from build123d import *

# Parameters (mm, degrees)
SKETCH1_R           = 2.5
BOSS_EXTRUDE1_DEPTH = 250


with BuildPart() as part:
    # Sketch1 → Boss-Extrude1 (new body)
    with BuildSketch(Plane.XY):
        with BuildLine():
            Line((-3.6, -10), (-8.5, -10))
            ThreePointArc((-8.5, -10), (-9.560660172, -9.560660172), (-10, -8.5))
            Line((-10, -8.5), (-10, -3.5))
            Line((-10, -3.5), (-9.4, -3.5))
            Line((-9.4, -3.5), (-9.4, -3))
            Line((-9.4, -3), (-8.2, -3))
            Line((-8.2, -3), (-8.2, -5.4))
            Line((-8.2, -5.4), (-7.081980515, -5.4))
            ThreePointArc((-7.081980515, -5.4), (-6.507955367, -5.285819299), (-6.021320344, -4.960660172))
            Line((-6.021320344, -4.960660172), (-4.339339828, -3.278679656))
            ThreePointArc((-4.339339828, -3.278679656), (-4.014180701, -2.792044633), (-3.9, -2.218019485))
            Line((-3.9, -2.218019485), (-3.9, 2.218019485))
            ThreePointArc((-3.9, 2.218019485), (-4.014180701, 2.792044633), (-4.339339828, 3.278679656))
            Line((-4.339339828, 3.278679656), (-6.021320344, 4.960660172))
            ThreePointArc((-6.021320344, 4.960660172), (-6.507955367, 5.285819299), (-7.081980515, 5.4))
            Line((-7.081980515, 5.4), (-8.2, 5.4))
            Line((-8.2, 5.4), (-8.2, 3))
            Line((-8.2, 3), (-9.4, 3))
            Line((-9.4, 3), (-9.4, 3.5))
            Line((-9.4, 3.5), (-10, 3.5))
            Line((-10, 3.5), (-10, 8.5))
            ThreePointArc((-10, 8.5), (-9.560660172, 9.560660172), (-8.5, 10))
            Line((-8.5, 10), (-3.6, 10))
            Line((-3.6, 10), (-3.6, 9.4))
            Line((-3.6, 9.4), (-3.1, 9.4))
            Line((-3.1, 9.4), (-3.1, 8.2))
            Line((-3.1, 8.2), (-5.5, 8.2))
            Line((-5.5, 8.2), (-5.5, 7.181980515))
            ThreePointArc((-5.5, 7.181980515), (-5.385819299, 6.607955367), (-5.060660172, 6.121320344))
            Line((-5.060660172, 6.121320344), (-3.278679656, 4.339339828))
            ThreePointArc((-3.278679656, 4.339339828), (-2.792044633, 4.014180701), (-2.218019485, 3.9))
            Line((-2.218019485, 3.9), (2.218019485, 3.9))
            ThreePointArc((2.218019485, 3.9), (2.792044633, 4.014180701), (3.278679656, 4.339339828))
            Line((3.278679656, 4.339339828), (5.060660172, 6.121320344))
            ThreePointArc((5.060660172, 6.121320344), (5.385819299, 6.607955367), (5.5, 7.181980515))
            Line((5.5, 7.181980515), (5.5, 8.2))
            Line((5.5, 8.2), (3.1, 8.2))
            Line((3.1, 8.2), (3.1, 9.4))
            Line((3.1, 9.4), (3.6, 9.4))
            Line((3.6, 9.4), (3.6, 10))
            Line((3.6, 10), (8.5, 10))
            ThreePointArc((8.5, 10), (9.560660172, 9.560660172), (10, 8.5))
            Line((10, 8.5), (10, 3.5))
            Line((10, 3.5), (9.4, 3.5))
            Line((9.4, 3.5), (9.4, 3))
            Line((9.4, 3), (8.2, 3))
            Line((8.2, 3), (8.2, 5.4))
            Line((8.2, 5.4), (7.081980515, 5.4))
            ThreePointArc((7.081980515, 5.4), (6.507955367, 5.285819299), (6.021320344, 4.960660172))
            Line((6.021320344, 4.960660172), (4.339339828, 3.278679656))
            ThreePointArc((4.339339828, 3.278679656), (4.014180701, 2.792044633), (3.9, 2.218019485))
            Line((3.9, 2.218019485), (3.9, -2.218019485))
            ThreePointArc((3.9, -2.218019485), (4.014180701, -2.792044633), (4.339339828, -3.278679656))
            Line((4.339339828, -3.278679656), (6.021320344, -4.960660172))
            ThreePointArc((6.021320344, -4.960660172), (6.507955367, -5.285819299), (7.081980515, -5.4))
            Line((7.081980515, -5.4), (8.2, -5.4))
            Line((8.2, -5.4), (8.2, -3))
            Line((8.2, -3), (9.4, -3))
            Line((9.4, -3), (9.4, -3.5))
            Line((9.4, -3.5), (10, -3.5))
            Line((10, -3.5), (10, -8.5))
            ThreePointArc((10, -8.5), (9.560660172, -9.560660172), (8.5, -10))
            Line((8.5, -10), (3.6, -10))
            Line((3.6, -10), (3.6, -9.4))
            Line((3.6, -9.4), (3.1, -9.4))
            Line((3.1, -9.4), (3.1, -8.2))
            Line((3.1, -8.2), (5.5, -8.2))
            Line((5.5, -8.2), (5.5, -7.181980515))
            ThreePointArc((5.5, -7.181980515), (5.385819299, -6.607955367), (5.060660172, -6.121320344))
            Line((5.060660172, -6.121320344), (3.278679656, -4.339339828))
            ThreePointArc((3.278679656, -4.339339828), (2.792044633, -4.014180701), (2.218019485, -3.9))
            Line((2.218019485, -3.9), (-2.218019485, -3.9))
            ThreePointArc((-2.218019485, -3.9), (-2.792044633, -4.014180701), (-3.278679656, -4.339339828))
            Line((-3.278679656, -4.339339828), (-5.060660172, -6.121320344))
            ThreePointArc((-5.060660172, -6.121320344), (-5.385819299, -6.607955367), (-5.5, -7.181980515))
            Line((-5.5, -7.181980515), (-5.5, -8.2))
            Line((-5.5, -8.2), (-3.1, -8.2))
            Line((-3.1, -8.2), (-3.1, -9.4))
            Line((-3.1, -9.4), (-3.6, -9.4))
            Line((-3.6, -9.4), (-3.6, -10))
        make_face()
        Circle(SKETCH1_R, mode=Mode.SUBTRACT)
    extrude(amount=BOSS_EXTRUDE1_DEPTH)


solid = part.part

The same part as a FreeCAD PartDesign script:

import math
import FreeCAD as App
import Part
import Sketcher

doc = App.newDocument("Part")
params = doc.addObject("Spreadsheet::Sheet", "Params")
for row, (alias, value) in enumerate([
    ("sketch1_diameter", "5 mm"),
    ("sketch1_radius", "1.5 mm"),
    ("sketch1_height", "5 mm"),
    ("sketch1_width", "4.9 mm"),
    ("sketch1_width2", "0.5 mm"),
    ("pad1_length", "250 mm"),
], start=1):
    params.set(f"A{row}", alias)
    params.set(f"B{row}", "=" + value)
    params.setAlias(f"B{row}", alias)

body = doc.addObject("PartDesign::Body", "Body")

# Sketch on XY plane
sketch1 = body.newObject("Sketcher::SketchObject", "Sketch")
sketch1.AttachmentSupport = (doc.getObject("XY_Plane"), [""])
sketch1.MapMode = "FlatFace"
sketch1.addGeometry([
    Part.LineSegment(App.Vector(-8.5, -10, 0), App.Vector(-3.6, -10, 0)),  # 0
    Part.LineSegment(App.Vector(-3.6, -10, 0), App.Vector(-3.6, -9.4, 0)),  # 1
    Part.LineSegment(App.Vector(-3.6, -9.4, 0), App.Vector(-3.1, -9.4, 0)),  # 2
    Part.LineSegment(App.Vector(-3.1, -9.4, 0), App.Vector(-3.1, -8.2, 0)),  # 3
    Part.LineSegment(App.Vector(-3.1, -8.2, 0), App.Vector(-5.5, -8.2, 0)),  # 4
    Part.LineSegment(App.Vector(-5.5, -8.2, 0), App.Vector(-5.5, -7.2, 0)),  # 5
    Part.ArcOfCircle(Part.Circle(App.Vector(-4, -7.2, 0), App.Vector(0, 0, 1), 1.5), math.radians(135), math.radians(180)),  # 6
    Part.LineSegment(App.Vector(-5.1, -6.1, 0), App.Vector(-3.3, -4.3, 0)),  # 7
    Part.ArcOfCircle(Part.Circle(App.Vector(-2.2, -5.4, 0), App.Vector(0, 0, 1), 1.5), math.radians(90), math.radians(135)),  # 8
    Part.LineSegment(App.Vector(-2.2, -3.9, 0), App.Vector(2.2, -3.9, 0)),  # 9
    Part.ArcOfCircle(Part.Circle(App.Vector(2.2, -5.4, 0), App.Vector(0, 0, 1), 1.5), math.radians(45), math.radians(90)),  # 10
    Part.LineSegment(App.Vector(3.3, -4.3, 0), App.Vector(5.1, -6.1, 0)),  # 11
    Part.ArcOfCircle(Part.Circle(App.Vector(4, -7.2, 0), App.Vector(0, 0, 1), 1.5), math.radians(0), math.radians(45)),  # 12
    Part.LineSegment(App.Vector(5.5, -7.2, 0), App.Vector(5.5, -8.2, 0)),  # 13
    Part.LineSegment(App.Vector(5.5, -8.2, 0), App.Vector(3.1, -8.2, 0)),  # 14
    Part.LineSegment(App.Vector(3.1, -8.2, 0), App.Vector(3.1, -9.4, 0)),  # 15
    Part.LineSegment(App.Vector(3.1, -9.4, 0), App.Vector(3.6, -9.4, 0)),  # 16
    Part.LineSegment(App.Vector(3.6, -9.4, 0), App.Vector(3.6, -10, 0)),  # 17
    Part.LineSegment(App.Vector(3.6, -10, 0), App.Vector(8.5, -10, 0)),  # 18
    Part.ArcOfCircle(Part.Circle(App.Vector(8.5, -8.5, 0), App.Vector(0, 0, 1), 1.5), math.radians(-90), math.radians(0)),  # 19
    Part.LineSegment(App.Vector(10, -8.5, 0), App.Vector(10, -3.5, 0)),  # 20
    Part.LineSegment(App.Vector(10, -3.5, 0), App.Vector(9.4, -3.5, 0)),  # 21
    Part.LineSegment(App.Vector(9.4, -3.5, 0), App.Vector(9.4, -3, 0)),  # 22
    Part.LineSegment(App.Vector(9.4, -3, 0), App.Vector(8.2, -3, 0)),  # 23
    Part.LineSegment(App.Vector(8.2, -3, 0), App.Vector(8.2, -5.4, 0)),  # 24
    Part.LineSegment(App.Vector(8.2, -5.4, 0), App.Vector(7.1, -5.4, 0)),  # 25
    Part.ArcOfCircle(Part.Circle(App.Vector(7.1, -3.9, 0), App.Vector(0, 0, 1), 1.5), math.radians(-135), math.radians(-90)),  # 26
    Part.LineSegment(App.Vector(6, -5, 0), App.Vector(4.3, -3.3, 0)),  # 27
    Part.ArcOfCircle(Part.Circle(App.Vector(5.4, -2.2, 0), App.Vector(0, 0, 1), 1.5), math.radians(180), math.radians(225)),  # 28
    Part.LineSegment(App.Vector(3.9, -2.2, 0), App.Vector(3.9, 2.2, 0)),  # 29
    Part.ArcOfCircle(Part.Circle(App.Vector(5.4, 2.2, 0), App.Vector(0, 0, 1), 1.5), math.radians(135), math.radians(180)),  # 30
    Part.LineSegment(App.Vector(4.3, 3.3, 0), App.Vector(6, 5, 0)),  # 31
    Part.ArcOfCircle(Part.Circle(App.Vector(7.1, 3.9, 0), App.Vector(0, 0, 1), 1.5), math.radians(90), math.radians(135)),  # 32
    Part.LineSegment(App.Vector(7.1, 5.4, 0), App.Vector(8.2, 5.4, 0)),  # 33
    Part.LineSegment(App.Vector(8.2, 5.4, 0), App.Vector(8.2, 3, 0)),  # 34
    Part.LineSegment(App.Vector(8.2, 3, 0), App.Vector(9.4, 3, 0)),  # 35
    Part.LineSegment(App.Vector(9.4, 3, 0), App.Vector(9.4, 3.5, 0)),  # 36
    Part.LineSegment(App.Vector(9.4, 3.5, 0), App.Vector(10, 3.5, 0)),  # 37
    Part.LineSegment(App.Vector(10, 3.5, 0), App.Vector(10, 8.5, 0)),  # 38
    Part.ArcOfCircle(Part.Circle(App.Vector(8.5, 8.5, 0), App.Vector(0, 0, 1), 1.5), math.radians(0), math.radians(90)),  # 39
    Part.LineSegment(App.Vector(8.5, 10, 0), App.Vector(3.6, 10, 0)),  # 40
    Part.LineSegment(App.Vector(3.6, 10, 0), App.Vector(3.6, 9.4, 0)),  # 41
    Part.LineSegment(App.Vector(3.6, 9.4, 0), App.Vector(3.1, 9.4, 0)),  # 42
    Part.LineSegment(App.Vector(3.1, 9.4, 0), App.Vector(3.1, 8.2, 0)),  # 43
    Part.LineSegment(App.Vector(3.1, 8.2, 0), App.Vector(5.5, 8.2, 0)),  # 44
    Part.LineSegment(App.Vector(5.5, 8.2, 0), App.Vector(5.5, 7.2, 0)),  # 45
    Part.ArcOfCircle(Part.Circle(App.Vector(4, 7.2, 0), App.Vector(0, 0, 1), 1.5), math.radians(-45), math.radians(0)),  # 46
    Part.LineSegment(App.Vector(5.1, 6.1, 0), App.Vector(3.3, 4.3, 0)),  # 47
    Part.ArcOfCircle(Part.Circle(App.Vector(2.2, 5.4, 0), App.Vector(0, 0, 1), 1.5), math.radians(-90), math.radians(-45)),  # 48
    Part.LineSegment(App.Vector(2.2, 3.9, 0), App.Vector(-2.2, 3.9, 0)),  # 49
    Part.ArcOfCircle(Part.Circle(App.Vector(-2.2, 5.4, 0), App.Vector(0, 0, 1), 1.5), math.radians(-135), math.radians(-90)),  # 50
    Part.LineSegment(App.Vector(-3.3, 4.3, 0), App.Vector(-5.1, 6.1, 0)),  # 51
    Part.ArcOfCircle(Part.Circle(App.Vector(-4, 7.2, 0), App.Vector(0, 0, 1), 1.5), math.radians(180), math.radians(225)),  # 52
    Part.LineSegment(App.Vector(-5.5, 7.2, 0), App.Vector(-5.5, 8.2, 0)),  # 53
    Part.LineSegment(App.Vector(-5.5, 8.2, 0), App.Vector(-3.1, 8.2, 0)),  # 54
    Part.LineSegment(App.Vector(-3.1, 8.2, 0), App.Vector(-3.1, 9.4, 0)),  # 55
    Part.LineSegment(App.Vector(-3.1, 9.4, 0), App.Vector(-3.6, 9.4, 0)),  # 56
    Part.LineSegment(App.Vector(-3.6, 9.4, 0), App.Vector(-3.6, 10, 0)),  # 57
    Part.LineSegment(App.Vector(-3.6, 10, 0), App.Vector(-8.5, 10, 0)),  # 58
    Part.ArcOfCircle(Part.Circle(App.Vector(-8.5, 8.5, 0), App.Vector(0, 0, 1), 1.5), math.radians(90), math.radians(180)),  # 59
    Part.LineSegment(App.Vector(-10, 8.5, 0), App.Vector(-10, 3.5, 0)),  # 60
    Part.LineSegment(App.Vector(-10, 3.5, 0), App.Vector(-9.4, 3.5, 0)),  # 61
    Part.LineSegment(App.Vector(-9.4, 3.5, 0), App.Vector(-9.4, 3, 0)),  # 62
    Part.LineSegment(App.Vector(-9.4, 3, 0), App.Vector(-8.2, 3, 0)),  # 63
    Part.LineSegment(App.Vector(-8.2, 3, 0), App.Vector(-8.2, 5.4, 0)),  # 64
    Part.LineSegment(App.Vector(-8.2, 5.4, 0), App.Vector(-7.1, 5.4, 0)),  # 65
    Part.ArcOfCircle(Part.Circle(App.Vector(-7.1, 3.9, 0), App.Vector(0, 0, 1), 1.5), math.radians(45), math.radians(90)),  # 66
    Part.LineSegment(App.Vector(-6, 5, 0), App.Vector(-4.3, 3.3, 0)),  # 67
    Part.ArcOfCircle(Part.Circle(App.Vector(-5.4, 2.2, 0), App.Vector(0, 0, 1), 1.5), math.radians(0), math.radians(45)),  # 68
    Part.LineSegment(App.Vector(-3.9, 2.2, 0), App.Vector(-3.9, -2.2, 0)),  # 69
    Part.ArcOfCircle(Part.Circle(App.Vector(-5.4, -2.2, 0), App.Vector(0, 0, 1), 1.5), math.radians(-45), math.radians(0)),  # 70
    Part.LineSegment(App.Vector(-4.3, -3.3, 0), App.Vector(-6, -5, 0)),  # 71
    Part.ArcOfCircle(Part.Circle(App.Vector(-7.1, -3.9, 0), App.Vector(0, 0, 1), 1.5), math.radians(-90), math.radians(-45)),  # 72
    Part.LineSegment(App.Vector(-7.1, -5.4, 0), App.Vector(-8.2, -5.4, 0)),  # 73
    Part.LineSegment(App.Vector(-8.2, -5.4, 0), App.Vector(-8.2, -3, 0)),  # 74
    Part.LineSegment(App.Vector(-8.2, -3, 0), App.Vector(-9.4, -3, 0)),  # 75
    Part.LineSegment(App.Vector(-9.4, -3, 0), App.Vector(-9.4, -3.5, 0)),  # 76
    Part.LineSegment(App.Vector(-9.4, -3.5, 0), App.Vector(-10, -3.5, 0)),  # 77
    Part.LineSegment(App.Vector(-10, -3.5, 0), App.Vector(-10, -8.5, 0)),  # 78
    Part.ArcOfCircle(Part.Circle(App.Vector(-8.5, -8.5, 0), App.Vector(0, 0, 1), 1.5), math.radians(180), math.radians(270)),  # 79
    Part.Circle(App.Vector(0, 0, 0), App.Vector(0, 0, 1), 2.5),  # 80
], False)
sketch1.addConstraint([
    Sketcher.Constraint("Coincident", 0, 2, 1, 1),
    Sketcher.Constraint("Coincident", 1, 2, 2, 1),
    Sketcher.Constraint("Coincident", 2, 2, 3, 1),
    Sketcher.Constraint("Coincident", 3, 2, 4, 1),
    Sketcher.Constraint("Coincident", 4, 2, 5, 1),
    Sketcher.Constraint("Tangent", 5, 2, 6, 2),
    Sketcher.Constraint("Tangent", 6, 1, 7, 1),
    Sketcher.Constraint("Tangent", 7, 2, 8, 2),
    Sketcher.Constraint("Tangent", 8, 1, 9, 1),
    Sketcher.Constraint("Tangent", 9, 2, 10, 2),
    Sketcher.Constraint("Tangent", 10, 1, 11, 1),
    Sketcher.Constraint("Tangent", 11, 2, 12, 2),
    Sketcher.Constraint("Tangent", 12, 1, 13, 1),
    Sketcher.Constraint("Coincident", 13, 2, 14, 1),
    Sketcher.Constraint("Coincident", 14, 2, 15, 1),
    Sketcher.Constraint("Coincident", 15, 2, 16, 1),
    Sketcher.Constraint("Coincident", 16, 2, 17, 1),
    Sketcher.Constraint("Coincident", 17, 2, 18, 1),
    Sketcher.Constraint("Tangent", 18, 2, 19, 1),
    Sketcher.Constraint("Tangent", 19, 2, 20, 1),
    Sketcher.Constraint("Coincident", 20, 2, 21, 1),
    Sketcher.Constraint("Coincident", 21, 2, 22, 1),
    Sketcher.Constraint("Coincident", 22, 2, 23, 1),
    Sketcher.Constraint("Coincident", 23, 2, 24, 1),
    Sketcher.Constraint("Coincident", 24, 2, 25, 1),
    Sketcher.Constraint("Tangent", 25, 2, 26, 2),
    Sketcher.Constraint("Tangent", 26, 1, 27, 1),
    Sketcher.Constraint("Tangent", 27, 2, 28, 2),
    Sketcher.Constraint("Tangent", 28, 1, 29, 1),
    Sketcher.Constraint("Tangent", 29, 2, 30, 2),
    Sketcher.Constraint("Tangent", 30, 1, 31, 1),
    Sketcher.Constraint("Tangent", 31, 2, 32, 2),
    Sketcher.Constraint("Tangent", 32, 1, 33, 1),
    Sketcher.Constraint("Coincident", 33, 2, 34, 1),
    Sketcher.Constraint("Coincident", 34, 2, 35, 1),
    Sketcher.Constraint("Coincident", 35, 2, 36, 1),
    Sketcher.Constraint("Coincident", 36, 2, 37, 1),
    Sketcher.Constraint("Coincident", 37, 2, 38, 1),
    Sketcher.Constraint("Tangent", 38, 2, 39, 1),
    Sketcher.Constraint("Tangent", 39, 2, 40, 1),
    Sketcher.Constraint("Coincident", 40, 2, 41, 1),
    Sketcher.Constraint("Coincident", 41, 2, 42, 1),
    Sketcher.Constraint("Coincident", 42, 2, 43, 1),
    Sketcher.Constraint("Coincident", 43, 2, 44, 1),
    Sketcher.Constraint("Coincident", 44, 2, 45, 1),
    Sketcher.Constraint("Tangent", 45, 2, 46, 2),
    Sketcher.Constraint("Tangent", 46, 1, 47, 1),
    Sketcher.Constraint("Tangent", 47, 2, 48, 2),
    Sketcher.Constraint("Tangent", 48, 1, 49, 1),
    Sketcher.Constraint("Tangent", 49, 2, 50, 2),
    Sketcher.Constraint("Tangent", 50, 1, 51, 1),
    Sketcher.Constraint("Tangent", 51, 2, 52, 2),
    Sketcher.Constraint("Tangent", 52, 1, 53, 1),
    Sketcher.Constraint("Coincident", 53, 2, 54, 1),
    Sketcher.Constraint("Coincident", 54, 2, 55, 1),
    Sketcher.Constraint("Coincident", 55, 2, 56, 1),
    Sketcher.Constraint("Coincident", 56, 2, 57, 1),
    Sketcher.Constraint("Coincident", 57, 2, 58, 1),
    Sketcher.Constraint("Tangent", 58, 2, 59, 1),
    Sketcher.Constraint("Tangent", 59, 2, 60, 1),
    Sketcher.Constraint("Coincident", 60, 2, 61, 1),
    Sketcher.Constraint("Coincident", 61, 2, 62, 1),
    Sketcher.Constraint("Coincident", 62, 2, 63, 1),
    Sketcher.Constraint("Coincident", 63, 2, 64, 1),
    Sketcher.Constraint("Coincident", 64, 2, 65, 1),
    Sketcher.Constraint("Tangent", 65, 2, 66, 2),
    Sketcher.Constraint("Tangent", 66, 1, 67, 1),
    Sketcher.Constraint("Tangent", 67, 2, 68, 2),
    Sketcher.Constraint("Tangent", 68, 1, 69, 1),
    Sketcher.Constraint("Tangent", 69, 2, 70, 2),
    Sketcher.Constraint("Tangent", 70, 1, 71, 1),
    Sketcher.Constraint("Tangent", 71, 2, 72, 2),
    Sketcher.Constraint("Tangent", 72, 1, 73, 1),
    Sketcher.Constraint("Coincident", 73, 2, 74, 1),
    Sketcher.Constraint("Coincident", 74, 2, 75, 1),
    Sketcher.Constraint("Coincident", 75, 2, 76, 1),
    Sketcher.Constraint("Coincident", 76, 2, 77, 1),
    Sketcher.Constraint("Coincident", 77, 2, 78, 1),
    Sketcher.Constraint("Tangent", 78, 2, 79, 1),
    Sketcher.Constraint("Tangent", 79, 2, 0, 1),
    Sketcher.Constraint("Horizontal", 0),
    Sketcher.Constraint("Vertical", 1),
    Sketcher.Constraint("Horizontal", 2),
    Sketcher.Constraint("Vertical", 3),
    Sketcher.Constraint("Horizontal", 4),
    Sketcher.Constraint("Vertical", 5),
    Sketcher.Constraint("Horizontal", 9),
    Sketcher.Constraint("Vertical", 13),
    Sketcher.Constraint("Horizontal", 14),
    Sketcher.Constraint("Vertical", 15),
    Sketcher.Constraint("Horizontal", 16),
    Sketcher.Constraint("Vertical", 17),
    Sketcher.Constraint("Horizontal", 18),
    Sketcher.Constraint("Vertical", 20),
    Sketcher.Constraint("Horizontal", 21),
    Sketcher.Constraint("Vertical", 22),
    Sketcher.Constraint("Horizontal", 23),
    Sketcher.Constraint("Vertical", 24),
    Sketcher.Constraint("Horizontal", 25),
    Sketcher.Constraint("Vertical", 29),
    Sketcher.Constraint("Horizontal", 33),
    Sketcher.Constraint("Vertical", 34),
    Sketcher.Constraint("Horizontal", 35),
    Sketcher.Constraint("Vertical", 36),
    Sketcher.Constraint("Horizontal", 37),
    Sketcher.Constraint("Vertical", 38),
    Sketcher.Constraint("Horizontal", 40),
    Sketcher.Constraint("Vertical", 41),
    Sketcher.Constraint("Horizontal", 42),
    Sketcher.Constraint("Vertical", 43),
    Sketcher.Constraint("Horizontal", 44),
    Sketcher.Constraint("Vertical", 45),
    Sketcher.Constraint("Horizontal", 49),
    Sketcher.Constraint("Vertical", 53),
    Sketcher.Constraint("Horizontal", 54),
    Sketcher.Constraint("Vertical", 55),
    Sketcher.Constraint("Horizontal", 56),
    Sketcher.Constraint("Vertical", 57),
    Sketcher.Constraint("Horizontal", 58),
    Sketcher.Constraint("Vertical", 60),
    Sketcher.Constraint("Horizontal", 61),
    Sketcher.Constraint("Vertical", 62),
    Sketcher.Constraint("Horizontal", 63),
    Sketcher.Constraint("Vertical", 64),
    Sketcher.Constraint("Horizontal", 65),
    Sketcher.Constraint("Vertical", 69),
    Sketcher.Constraint("Horizontal", 73),
    Sketcher.Constraint("Vertical", 74),
    Sketcher.Constraint("Horizontal", 75),
    Sketcher.Constraint("Vertical", 76),
    Sketcher.Constraint("Horizontal", 77),
    Sketcher.Constraint("Vertical", 78),
    Sketcher.Constraint("Coincident", 80, 3, -1, 1),
    Sketcher.Constraint("Equal", 6, 8),
    Sketcher.Constraint("Equal", 8, 10),
    Sketcher.Constraint("Equal", 10, 12),
    Sketcher.Constraint("Equal", 12, 19),
    Sketcher.Constraint("Equal", 19, 26),
    Sketcher.Constraint("Equal", 26, 28),
    Sketcher.Constraint("Equal", 28, 30),
    Sketcher.Constraint("Equal", 30, 32),
    Sketcher.Constraint("Equal", 32, 39),
    Sketcher.Constraint("Equal", 39, 46),
    Sketcher.Constraint("Equal", 46, 48),
    Sketcher.Constraint("Equal", 48, 50),
    Sketcher.Constraint("Equal", 50, 52),
    Sketcher.Constraint("Equal", 52, 59),
    Sketcher.Constraint("Equal", 59, 66),
    Sketcher.Constraint("Equal", 66, 68),
    Sketcher.Constraint("Equal", 68, 70),
    Sketcher.Constraint("Equal", 70, 72),
    Sketcher.Constraint("Equal", 72, 79),
    Sketcher.Constraint("Symmetric", 6, 3, 46, 3, -1, 1),
    Sketcher.Constraint("Symmetric", 8, 3, 48, 3, -1, 1),
    Sketcher.Constraint("Symmetric", 12, 3, 52, 3, -1, 1),
    Sketcher.Constraint("Symmetric", 19, 3, 59, 3, -1, 1),
    Sketcher.Constraint("Symmetric", 26, 3, 66, 3, -1, 1),
    Sketcher.Constraint("Symmetric", 28, 3, 68, 3, -1, 1),
    Sketcher.Constraint("Symmetric", 32, 3, 72, 3, -1, 1),
    Sketcher.Constraint("Symmetric", 39, 3, 79, 3, -1, 1),
    Sketcher.Constraint("Symmetric", 1, 2, 41, 2, -1, 1),
    Sketcher.Constraint("Symmetric", 3, 2, 43, 2, -1, 1),
    Sketcher.Constraint("Symmetric", 14, 2, 54, 2, -1, 1),
    Sketcher.Constraint("Symmetric", 16, 2, 56, 2, -1, 1),
    Sketcher.Constraint("Symmetric", 21, 2, 61, 2, -1, 1),
    Sketcher.Constraint("Symmetric", 23, 2, 63, 2, -1, 1),
    Sketcher.Constraint("Symmetric", 34, 2, 74, 2, -1, 1),
    Sketcher.Constraint("Symmetric", 36, 2, 76, 2, -1, 1),
    Sketcher.Constraint("Symmetric", 6, 3, 12, 3, -2),
    Sketcher.Constraint("Symmetric", 39, 3, 59, 3, -2),
    Sketcher.Constraint("Symmetric", 32, 3, 66, 3, -2),
    Sketcher.Constraint("Symmetric", 3, 2, 14, 2, -2),
    Sketcher.Constraint("Symmetric", 1, 2, 16, 2, -2),
    Sketcher.Constraint("Symmetric", 36, 2, 61, 2, -2),
    Sketcher.Constraint("Symmetric", 34, 2, 63, 2, -2),
    Sketcher.Constraint("Perpendicular", 7, 11),
    Sketcher.Constraint("Parallel", 11, 27),
    Sketcher.Constraint("Perpendicular", 27, 31),
    Sketcher.Constraint("Perpendicular", 47, 51),
    Sketcher.Constraint("Perpendicular", 67, 71),
    Sketcher.Constraint("Horizontal", 30, 3, 68, 3),
    Sketcher.Constraint("Horizontal", 72, 3, 8, 1),
    Sketcher.Constraint("Equal", 77, 1),
    Sketcher.Constraint("Equal", 75, 3),
    Sketcher.Constraint("Equal", 56, 22),
    Sketcher.Constraint("Equal", 54, 24),
    Sketcher.Constraint("Equal", 49, 29),
    Sketcher.Constraint("Diameter", 80, 5.0),
    Sketcher.Constraint("Radius", 6, 1.5),
    Sketcher.Constraint("DistanceY", 20, 1, 20, 2, 5.0),
    Sketcher.Constraint("DistanceX", 0, 1, 0, 2, 4.9),
    Sketcher.Constraint("DistanceX", 2, 1, 2, 2, 0.5),
    Sketcher.Constraint("DistanceX", 4, 2, 4, 1, 2.4),
    Sketcher.Constraint("DistanceX", 21, 2, 21, 1, 0.6),
    Sketcher.Constraint("DistanceX", 23, 2, 23, 1, 1.2),
    Sketcher.Constraint("DistanceX", 6, 3, -1, 1, 4.0),
    Sketcher.Constraint("DistanceY", 0, 2, -1, 1, 10.0),
    Sketcher.Constraint("DistanceX", -1, 1, 28, 3, 5.4),
    Sketcher.Constraint("Distance", 7, 2.520101),
])
sketch1.setExpression("Constraints[187]", "Params.sketch1_diameter")
sketch1.setExpression("Constraints[188]", "Params.sketch1_radius")
sketch1.setExpression("Constraints[189]", "Params.sketch1_height")
sketch1.setExpression("Constraints[190]", "Params.sketch1_width")
sketch1.setExpression("Constraints[191]", "Params.sketch1_width2")
pad1 = body.newObject("PartDesign::Pad", "Pad")
pad1.Profile = sketch1
pad1.setExpression("Length", "Params.pad1_length")

doc.recompute()
